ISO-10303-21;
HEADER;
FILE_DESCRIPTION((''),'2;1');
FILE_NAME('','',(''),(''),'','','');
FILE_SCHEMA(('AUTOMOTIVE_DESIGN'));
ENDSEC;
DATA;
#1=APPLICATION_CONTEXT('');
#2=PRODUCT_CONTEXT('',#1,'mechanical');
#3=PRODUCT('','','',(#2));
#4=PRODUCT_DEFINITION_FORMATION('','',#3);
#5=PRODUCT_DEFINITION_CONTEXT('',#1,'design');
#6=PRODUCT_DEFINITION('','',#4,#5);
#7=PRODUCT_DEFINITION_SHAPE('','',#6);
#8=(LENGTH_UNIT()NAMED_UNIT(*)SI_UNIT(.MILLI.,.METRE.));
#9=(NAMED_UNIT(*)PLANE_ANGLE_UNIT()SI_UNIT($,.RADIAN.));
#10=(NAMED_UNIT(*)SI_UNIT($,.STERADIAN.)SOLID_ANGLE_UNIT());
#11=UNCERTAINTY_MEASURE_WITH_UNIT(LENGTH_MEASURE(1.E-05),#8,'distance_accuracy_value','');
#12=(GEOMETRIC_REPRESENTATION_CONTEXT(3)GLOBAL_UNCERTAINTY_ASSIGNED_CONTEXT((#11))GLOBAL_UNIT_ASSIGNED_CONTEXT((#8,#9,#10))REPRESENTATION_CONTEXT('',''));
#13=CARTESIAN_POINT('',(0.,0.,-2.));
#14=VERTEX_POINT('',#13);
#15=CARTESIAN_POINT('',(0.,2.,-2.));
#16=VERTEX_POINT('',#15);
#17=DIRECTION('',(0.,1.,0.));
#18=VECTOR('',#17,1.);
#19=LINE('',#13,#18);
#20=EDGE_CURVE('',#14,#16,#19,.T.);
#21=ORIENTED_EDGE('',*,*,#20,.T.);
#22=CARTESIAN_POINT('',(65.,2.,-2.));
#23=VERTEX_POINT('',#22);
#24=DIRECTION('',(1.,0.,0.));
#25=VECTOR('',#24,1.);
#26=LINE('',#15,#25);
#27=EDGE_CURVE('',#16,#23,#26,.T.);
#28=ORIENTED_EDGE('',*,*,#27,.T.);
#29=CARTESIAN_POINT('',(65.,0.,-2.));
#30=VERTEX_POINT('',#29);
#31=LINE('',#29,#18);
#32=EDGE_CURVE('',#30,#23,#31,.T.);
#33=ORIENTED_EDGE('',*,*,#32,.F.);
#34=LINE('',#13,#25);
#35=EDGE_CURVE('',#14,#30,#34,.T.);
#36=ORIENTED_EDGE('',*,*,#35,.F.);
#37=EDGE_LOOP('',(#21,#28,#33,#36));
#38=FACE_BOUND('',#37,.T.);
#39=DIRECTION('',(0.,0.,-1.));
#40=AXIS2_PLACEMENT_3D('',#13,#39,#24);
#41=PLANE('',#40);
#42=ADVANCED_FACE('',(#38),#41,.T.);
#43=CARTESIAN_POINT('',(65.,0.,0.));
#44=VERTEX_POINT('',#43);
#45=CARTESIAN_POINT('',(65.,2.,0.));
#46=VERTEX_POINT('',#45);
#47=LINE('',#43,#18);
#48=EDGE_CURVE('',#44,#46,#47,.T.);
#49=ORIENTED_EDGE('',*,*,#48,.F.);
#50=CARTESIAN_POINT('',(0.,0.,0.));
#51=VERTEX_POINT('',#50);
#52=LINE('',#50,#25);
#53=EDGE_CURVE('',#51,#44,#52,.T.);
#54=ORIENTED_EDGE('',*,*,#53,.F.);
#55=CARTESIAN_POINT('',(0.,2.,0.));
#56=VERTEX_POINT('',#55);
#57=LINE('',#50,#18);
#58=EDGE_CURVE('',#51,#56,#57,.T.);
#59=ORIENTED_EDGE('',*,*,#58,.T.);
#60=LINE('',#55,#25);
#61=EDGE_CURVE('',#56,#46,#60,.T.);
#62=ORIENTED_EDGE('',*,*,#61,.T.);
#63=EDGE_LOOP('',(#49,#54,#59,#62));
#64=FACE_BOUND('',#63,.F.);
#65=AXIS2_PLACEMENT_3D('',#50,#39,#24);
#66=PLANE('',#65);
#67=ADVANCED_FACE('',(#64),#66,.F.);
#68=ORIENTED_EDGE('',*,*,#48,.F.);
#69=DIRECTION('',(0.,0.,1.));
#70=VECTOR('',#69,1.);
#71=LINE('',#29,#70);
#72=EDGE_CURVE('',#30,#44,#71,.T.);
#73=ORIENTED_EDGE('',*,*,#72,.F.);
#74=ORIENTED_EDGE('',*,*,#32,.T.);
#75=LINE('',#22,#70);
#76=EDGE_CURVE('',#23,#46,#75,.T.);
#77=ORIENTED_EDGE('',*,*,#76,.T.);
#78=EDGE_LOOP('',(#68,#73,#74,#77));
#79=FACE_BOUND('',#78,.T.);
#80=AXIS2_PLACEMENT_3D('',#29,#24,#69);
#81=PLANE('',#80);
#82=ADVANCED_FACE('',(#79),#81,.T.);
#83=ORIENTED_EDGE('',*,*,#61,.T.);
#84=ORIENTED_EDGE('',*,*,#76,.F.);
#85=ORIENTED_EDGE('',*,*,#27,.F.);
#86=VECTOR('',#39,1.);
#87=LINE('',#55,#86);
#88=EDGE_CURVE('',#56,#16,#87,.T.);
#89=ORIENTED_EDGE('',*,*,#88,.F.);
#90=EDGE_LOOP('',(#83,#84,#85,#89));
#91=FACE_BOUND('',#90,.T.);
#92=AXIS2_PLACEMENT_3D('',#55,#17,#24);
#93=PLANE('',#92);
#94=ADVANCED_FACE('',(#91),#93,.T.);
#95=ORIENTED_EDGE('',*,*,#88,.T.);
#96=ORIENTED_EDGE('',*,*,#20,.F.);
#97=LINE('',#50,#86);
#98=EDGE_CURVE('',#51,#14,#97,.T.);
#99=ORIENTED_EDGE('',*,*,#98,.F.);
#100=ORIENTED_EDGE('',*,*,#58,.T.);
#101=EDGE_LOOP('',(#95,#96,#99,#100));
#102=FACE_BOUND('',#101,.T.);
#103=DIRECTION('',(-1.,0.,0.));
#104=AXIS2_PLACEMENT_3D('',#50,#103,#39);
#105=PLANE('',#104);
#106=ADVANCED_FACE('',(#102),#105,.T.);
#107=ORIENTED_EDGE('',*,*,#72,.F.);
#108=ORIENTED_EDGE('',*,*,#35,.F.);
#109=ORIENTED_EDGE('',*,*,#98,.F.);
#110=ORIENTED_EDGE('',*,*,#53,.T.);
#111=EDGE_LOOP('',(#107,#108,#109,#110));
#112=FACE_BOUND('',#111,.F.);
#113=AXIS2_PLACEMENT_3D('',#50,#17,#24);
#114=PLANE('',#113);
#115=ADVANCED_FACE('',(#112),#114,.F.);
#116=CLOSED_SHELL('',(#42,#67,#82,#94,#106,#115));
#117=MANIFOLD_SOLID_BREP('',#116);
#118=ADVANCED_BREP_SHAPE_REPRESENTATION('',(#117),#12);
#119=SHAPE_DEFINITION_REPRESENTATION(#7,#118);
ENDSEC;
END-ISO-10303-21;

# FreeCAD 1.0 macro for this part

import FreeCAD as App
import Part
import Sketcher

V = App.Vector

doc = App.newDocument("Part")
params = doc.addObject("Spreadsheet::Sheet", "Params")
for row, (alias, value) in enumerate([
    ("sketch1_width", "65 mm"),
    ("sketch1_height", "2 mm"),
    ("pad1_length", "2 mm"),
], start=1):
    params.set(f"A{row}", alias)
    params.set(f"B{row}", "=" + value)
    params.setAlias(f"B{row}", alias)

body = doc.addObject("PartDesign::Body", "Body")

sketch1 = doc.addObject("Sketcher::SketchObject", "Sketch")
body.addObject(sketch1)
sketch1.AttachmentSupport = (doc.XZ_Plane, [""])
sketch1.MapMode = "FlatFace"
sketch1.addGeometry(Part.LineSegment(V(0, -2, 0), V(0, 0, 0)), False)
sketch1.addGeometry(Part.LineSegment(V(0, 0, 0), V(65, 0, 0)), False)
sketch1.addGeometry(Part.LineSegment(V(65, 0, 0), V(65, -2, 0)), False)
sketch1.addGeometry(Part.LineSegment(V(65, -2, 0), V(0, -2, 0)), False)
sketch1.addConstraint(Sketcher.Constraint("Coincident", 0, 2, 1, 1))
sketch1.addConstraint(Sketcher.Constraint("Coincident", 1, 2, 2, 1))
sketch1.addConstraint(Sketcher.Constraint("Coincident", 2, 2, 3, 1))
sketch1.addConstraint(Sketcher.Constraint("Coincident", 3, 2, 0, 1))
sketch1.addConstraint(Sketcher.Constraint("Vertical", 0))
sketch1.addConstraint(Sketcher.Constraint("Horizontal", 1))
sketch1.addConstraint(Sketcher.Constraint("Vertical", 2))
sketch1.addConstraint(Sketcher.Constraint("Horizontal", 3))
sketch1.addConstraint(Sketcher.Constraint("Coincident", 0, 2, -1, 1))
sketch1.addConstraint(Sketcher.Constraint("DistanceX", 1, 1, 1, 2, 65.0))
sketch1.addConstraint(Sketcher.Constraint("DistanceY", 0, 1, 0, 2, 2.0))
sketch1.setExpression("Constraints[9]", "Params.sketch1_width")
sketch1.setExpression("Constraints[10]", "Params.sketch1_height")
pad1 = doc.addObject("PartDesign::Pad", "Pad")
body.addObject(pad1)
pad1.Profile = sketch1
pad1.setExpression("Length", "Params.pad1_length")
pad1.Reversed = True

doc.recompute()
